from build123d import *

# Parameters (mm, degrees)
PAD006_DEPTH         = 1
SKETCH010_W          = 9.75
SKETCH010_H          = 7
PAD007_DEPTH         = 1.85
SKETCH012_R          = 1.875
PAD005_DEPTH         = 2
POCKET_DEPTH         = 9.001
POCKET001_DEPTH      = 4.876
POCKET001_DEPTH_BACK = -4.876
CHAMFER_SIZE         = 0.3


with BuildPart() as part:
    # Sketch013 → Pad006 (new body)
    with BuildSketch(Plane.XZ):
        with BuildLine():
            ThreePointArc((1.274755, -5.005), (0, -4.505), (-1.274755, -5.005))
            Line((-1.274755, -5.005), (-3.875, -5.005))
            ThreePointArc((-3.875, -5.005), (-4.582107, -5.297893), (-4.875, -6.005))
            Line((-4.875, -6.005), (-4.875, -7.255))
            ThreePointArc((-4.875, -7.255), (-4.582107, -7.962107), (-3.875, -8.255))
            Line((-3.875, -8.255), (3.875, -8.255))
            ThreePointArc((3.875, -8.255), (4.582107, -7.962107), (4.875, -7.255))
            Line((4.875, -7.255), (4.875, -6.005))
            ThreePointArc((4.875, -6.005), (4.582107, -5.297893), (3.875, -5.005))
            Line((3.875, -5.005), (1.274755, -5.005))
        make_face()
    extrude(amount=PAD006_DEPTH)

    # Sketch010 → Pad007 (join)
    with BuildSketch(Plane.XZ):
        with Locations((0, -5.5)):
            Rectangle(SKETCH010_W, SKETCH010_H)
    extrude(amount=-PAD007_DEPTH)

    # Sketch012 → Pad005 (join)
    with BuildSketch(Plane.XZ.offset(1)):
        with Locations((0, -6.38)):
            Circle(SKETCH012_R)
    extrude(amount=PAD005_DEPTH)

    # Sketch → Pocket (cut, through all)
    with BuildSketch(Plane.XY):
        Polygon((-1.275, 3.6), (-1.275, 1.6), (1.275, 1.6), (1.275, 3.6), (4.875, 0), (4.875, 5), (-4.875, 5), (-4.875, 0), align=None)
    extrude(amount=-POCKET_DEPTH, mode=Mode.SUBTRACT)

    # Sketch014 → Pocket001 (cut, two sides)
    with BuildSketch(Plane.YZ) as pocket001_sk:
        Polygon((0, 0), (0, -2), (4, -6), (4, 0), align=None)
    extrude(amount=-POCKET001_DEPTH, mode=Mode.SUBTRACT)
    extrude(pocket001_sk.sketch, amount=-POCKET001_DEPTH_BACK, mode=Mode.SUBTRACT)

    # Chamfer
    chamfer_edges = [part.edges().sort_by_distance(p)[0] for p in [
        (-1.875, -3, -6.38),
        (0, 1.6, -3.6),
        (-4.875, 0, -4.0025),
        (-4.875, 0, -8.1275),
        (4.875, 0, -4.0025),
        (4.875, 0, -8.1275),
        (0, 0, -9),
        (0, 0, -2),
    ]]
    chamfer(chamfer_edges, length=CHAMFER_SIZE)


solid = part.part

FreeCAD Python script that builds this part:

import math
import FreeCAD as App
import Part
import Sketcher
Q = App.Units.Quantity


def edges_at(feature, points):
    """Names of the edges that pass closest to the given points."""
    edges = feature.Shape.Edges
    near = lambda p: min(range(len(edges)), key=lambda i: edges[i].distToShape(Part.Vertex(*p))[0])
    return sorted({f"Edge{near(p) + 1}" for p in points})


def add_polygon(sketch, points):
    """Adds a closed chain of lines whose ends are joined by coincident constraints."""
    first, n = sketch.GeometryCount, len(points)
    for a, b in zip(points, points[1:] + points[:1]):
        sketch.addGeometry(Part.LineSegment(App.Vector(*a, 0), App.Vector(*b, 0)), False)
    for i in range(n):
        sketch.addConstraint(Sketcher.Constraint("Coincident", first + i, 2, first + (i + 1) % n, 1))

doc = App.newDocument("Part")
body = doc.addObject("PartDesign::Body", "Body")

sketch1 = body.newObject("Sketcher::SketchObject", "Sketch")
sketch1.AttachmentSupport = (doc.getObject("XZ_Plane"), [""])
sketch1.MapMode = "FlatFace"
sketch1.addGeometry([
    Part.ArcOfCircle(Part.Circle(App.Vector(0, -6.4, 0), App.Vector(0, 0, 1), 1.9), math.radians(47), math.radians(133)),
    Part.LineSegment(App.Vector(-1.3, -5, 0), App.Vector(-3.9, -5, 0)),
    Part.ArcOfCircle(Part.Circle(App.Vector(-3.9, -6, 0), App.Vector(0, 0, 1), 1), math.radians(90), math.radians(180)),
    Part.LineSegment(App.Vector(-4.9, -6, 0), App.Vector(-4.9, -7.3, 0)),
    Part.ArcOfCircle(Part.Circle(App.Vector(-3.9, -7.3, 0), App.Vector(0, 0, 1), 1), math.radians(180), math.radians(270)),
    Part.LineSegment(App.Vector(-3.9, -8.3, 0), App.Vector(3.9, -8.3, 0)),
    Part.ArcOfCircle(Part.Circle(App.Vector(3.9, -7.3, 0), App.Vector(0, 0, 1), 1), math.radians(-90), math.radians(0)),
    Part.LineSegment(App.Vector(4.9, -7.3, 0), App.Vector(4.9, -6, 0)),
    Part.ArcOfCircle(Part.Circle(App.Vector(3.9, -6, 0), App.Vector(0, 0, 1), 1), math.radians(0), math.radians(90)),
    Part.LineSegment(App.Vector(3.9, -5, 0), App.Vector(1.3, -5, 0)),
], False)
sketch1.addConstraint([
    Sketcher.Constraint("Coincident", 0, 2, 1, 1),
    Sketcher.Constraint("Tangent", 1, 2, 2, 1),
    Sketcher.Constraint("Tangent", 2, 2, 3, 1),
    Sketcher.Constraint("Tangent", 3, 2, 4, 1),
    Sketcher.Constraint("Tangent", 4, 2, 5, 1),
    Sketcher.Constraint("Tangent", 5, 2, 6, 1),
    Sketcher.Constraint("Tangent", 6, 2, 7, 1),
    Sketcher.Constraint("Tangent", 7, 2, 8, 1),
    Sketcher.Constraint("Tangent", 8, 2, 9, 1),
    Sketcher.Constraint("Coincident", 9, 2, 0, 1),
    Sketcher.Constraint("Horizontal", 1),
    Sketcher.Constraint("Vertical", 3),
    Sketcher.Constraint("Horizontal", 5),
    Sketcher.Constraint("Vertical", 7),
    Sketcher.Constraint("Horizontal", 9),
    Sketcher.Constraint("Equal", 2, 4),
    Sketcher.Constraint("Equal", 4, 6),
    Sketcher.Constraint("Equal", 6, 8),
    Sketcher.Constraint("Symmetric", 2, 3, 8, 3, -2),
    Sketcher.Constraint("PointOnObject", 0, 3, -2),
    Sketcher.Constraint("Radius", 2, Q("0.999999 mm")),
    Sketcher.Constraint("Radius", 0, Q("1.875 mm")),
    Sketcher.Constraint("DistanceX", 5, 1, 5, 2, Q("7.75 mm")),
    Sketcher.Constraint("DistanceY", 3, 2, 3, 1, Q("1.25 mm")),
    Sketcher.Constraint("DistanceY", 0, 3, -1, 1, Q("6.38 mm")),
    Sketcher.Constraint("DistanceY", 2, 3, -1, 1, Q("6.004999 mm")),
])
pad1 = body.newObject("PartDesign::Pad", "Pad")
pad1.Profile = sketch1
pad1.Length = 1

sketch2 = body.newObject("Sketcher::SketchObject", "Sketch001")
sketch2.AttachmentSupport = (doc.getObject("XZ_Plane"), [""])
sketch2.MapMode = "FlatFace"
add_polygon(sketch2, [(-5, -2), (-5, -9), (5, -9), (5, -2)])
sketch2.addConstraint([
    Sketcher.Constraint("Vertical", 0),
    Sketcher.Constraint("Horizontal", 1),
    Sketcher.Constraint("Vertical", 2),
    Sketcher.Constraint("Horizontal", 3),
    Sketcher.Constraint("DistanceY", 0, 2, 0, 1, Q("7 mm")),
    Sketcher.Constraint("DistanceY", 0, 2, -1, 1, Q("9 mm")),
    Sketcher.Constraint("DistanceX", 1, 1, 1, 2, Q("9.75 mm")),
    Sketcher.Constraint("DistanceX", 0, 2, -1, 1, Q("4.875 mm")),
])
pad2 = body.newObject("PartDesign::Pad", "Pad001")
pad2.Profile = sketch2
pad2.Length = 1.85
pad2.Reversed = True

sketch3 = body.newObject("Sketcher::SketchObject", "Sketch002")
sketch3.AttachmentSupport = (doc.getObject("XZ_Plane"), [""])
sketch3.MapMode = "FlatFace"
sketch3.AttachmentOffset = App.Placement(App.Vector(0, 0, 1), App.Rotation())
sketch3.addGeometry(Part.Circle(App.Vector(0, -6.4, 0), App.Vector(0, 0, 1), 1.9), False)
sketch3.addConstraint([
    Sketcher.Constraint("PointOnObject", 0, 3, -2),
    Sketcher.Constraint("Diameter", 0, Q("3.75 mm")),
    Sketcher.Constraint("DistanceY", 0, 3, -1, 1, Q("6.38 mm")),
])
pad3 = body.newObject("PartDesign::Pad", "Pad002")
pad3.Profile = sketch3
pad3.Length = 2

sketch4 = body.newObject("Sketcher::SketchObject", "Sketch003")
sketch4.AttachmentSupport = (doc.getObject("XY_Plane"), [""])
sketch4.MapMode = "FlatFace"
add_polygon(sketch4, [(-1.3, 3.6), (-1.3, 1.6), (1.3, 1.6), (1.3, 3.6), (4.9, 0), (4.9, 5), (-4.9, 5), (-4.9, 0)])
sketch4.addConstraint([
    Sketcher.Constraint("Vertical", 0),
    Sketcher.Constraint("Horizontal", 1),
    Sketcher.Constraint("Vertical", 2),
    Sketcher.Constraint("Vertical", 4),
    Sketcher.Constraint("Horizontal", 5),
    Sketcher.Constraint("Vertical", 6),
    Sketcher.Constraint("Symmetric", 3, 2, 6, 2, -1, 1),
    Sketcher.Constraint("Symmetric", 2, 2, 7, 2, -2),
    Sketcher.Constraint("PointOnObject", 3, 2, -1),
    Sketcher.Constraint("Perpendicular", 3, 7),
    Sketcher.Constraint("DistanceY", 0, 2, 0, 1, Q("2 mm")),
    Sketcher.Constraint("DistanceY", 4, 1, 4, 2, Q("5 mm")),
    Sketcher.Constraint("DistanceX", 1, 1, 1, 2, Q("2.55 mm")),
    Sketcher.Constraint("DistanceX", 5, 2, 5, 1, Q("9.75 mm")),
])
pocket1 = body.newObject("PartDesign::Pocket", "Pocket")
pocket1.Profile = sketch4
pocket1.Type = "ThroughAll"

sketch5 = body.newObject("Sketcher::SketchObject", "Sketch004")
sketch5.AttachmentSupport = (doc.getObject("YZ_Plane"), [""])
sketch5.MapMode = "FlatFace"
add_polygon(sketch5, [(0, 0), (0, -2), (4, -6), (4, 0)])
sketch5.addConstraint([
    Sketcher.Constraint("Vertical", 0),
    Sketcher.Constraint("Vertical", 2),
    Sketcher.Constraint("Horizontal", 3),
    Sketcher.Constraint("Coincident", 3, 2, -1, 1),
    Sketcher.Constraint("DistanceX", 3, 2, 3, 1, Q("4 mm")),
    Sketcher.Constraint("DistanceY", 0, 2, 0, 1, Q("2 mm")),
    Sketcher.Constraint("DistanceY", 2, 1, 2, 2, Q("6 mm")),
])
pocket2 = body.newObject("PartDesign::Pocket", "Pocket001")
pocket2.Profile = sketch5
pocket2.Type = "ThroughAll"
pocket2.Midplane = True
doc.recompute()

chamfer = body.newObject("PartDesign::Chamfer", "Chamfer")
chamfer.Base = (pocket2, edges_at(pocket2, [
    (-1.875, -3, -6.38),
    (0, 1.6, -3.6),
    (-4.875, 0, -4.003),
    (-4.875, 0, -8.127),
    (4.875, 0, -4.003),
    (4.875, 0, -8.127),
    (0, 0, -9),
    (0, 0, -2),
]))
chamfer.Size = 0.3

doc.recompute()
